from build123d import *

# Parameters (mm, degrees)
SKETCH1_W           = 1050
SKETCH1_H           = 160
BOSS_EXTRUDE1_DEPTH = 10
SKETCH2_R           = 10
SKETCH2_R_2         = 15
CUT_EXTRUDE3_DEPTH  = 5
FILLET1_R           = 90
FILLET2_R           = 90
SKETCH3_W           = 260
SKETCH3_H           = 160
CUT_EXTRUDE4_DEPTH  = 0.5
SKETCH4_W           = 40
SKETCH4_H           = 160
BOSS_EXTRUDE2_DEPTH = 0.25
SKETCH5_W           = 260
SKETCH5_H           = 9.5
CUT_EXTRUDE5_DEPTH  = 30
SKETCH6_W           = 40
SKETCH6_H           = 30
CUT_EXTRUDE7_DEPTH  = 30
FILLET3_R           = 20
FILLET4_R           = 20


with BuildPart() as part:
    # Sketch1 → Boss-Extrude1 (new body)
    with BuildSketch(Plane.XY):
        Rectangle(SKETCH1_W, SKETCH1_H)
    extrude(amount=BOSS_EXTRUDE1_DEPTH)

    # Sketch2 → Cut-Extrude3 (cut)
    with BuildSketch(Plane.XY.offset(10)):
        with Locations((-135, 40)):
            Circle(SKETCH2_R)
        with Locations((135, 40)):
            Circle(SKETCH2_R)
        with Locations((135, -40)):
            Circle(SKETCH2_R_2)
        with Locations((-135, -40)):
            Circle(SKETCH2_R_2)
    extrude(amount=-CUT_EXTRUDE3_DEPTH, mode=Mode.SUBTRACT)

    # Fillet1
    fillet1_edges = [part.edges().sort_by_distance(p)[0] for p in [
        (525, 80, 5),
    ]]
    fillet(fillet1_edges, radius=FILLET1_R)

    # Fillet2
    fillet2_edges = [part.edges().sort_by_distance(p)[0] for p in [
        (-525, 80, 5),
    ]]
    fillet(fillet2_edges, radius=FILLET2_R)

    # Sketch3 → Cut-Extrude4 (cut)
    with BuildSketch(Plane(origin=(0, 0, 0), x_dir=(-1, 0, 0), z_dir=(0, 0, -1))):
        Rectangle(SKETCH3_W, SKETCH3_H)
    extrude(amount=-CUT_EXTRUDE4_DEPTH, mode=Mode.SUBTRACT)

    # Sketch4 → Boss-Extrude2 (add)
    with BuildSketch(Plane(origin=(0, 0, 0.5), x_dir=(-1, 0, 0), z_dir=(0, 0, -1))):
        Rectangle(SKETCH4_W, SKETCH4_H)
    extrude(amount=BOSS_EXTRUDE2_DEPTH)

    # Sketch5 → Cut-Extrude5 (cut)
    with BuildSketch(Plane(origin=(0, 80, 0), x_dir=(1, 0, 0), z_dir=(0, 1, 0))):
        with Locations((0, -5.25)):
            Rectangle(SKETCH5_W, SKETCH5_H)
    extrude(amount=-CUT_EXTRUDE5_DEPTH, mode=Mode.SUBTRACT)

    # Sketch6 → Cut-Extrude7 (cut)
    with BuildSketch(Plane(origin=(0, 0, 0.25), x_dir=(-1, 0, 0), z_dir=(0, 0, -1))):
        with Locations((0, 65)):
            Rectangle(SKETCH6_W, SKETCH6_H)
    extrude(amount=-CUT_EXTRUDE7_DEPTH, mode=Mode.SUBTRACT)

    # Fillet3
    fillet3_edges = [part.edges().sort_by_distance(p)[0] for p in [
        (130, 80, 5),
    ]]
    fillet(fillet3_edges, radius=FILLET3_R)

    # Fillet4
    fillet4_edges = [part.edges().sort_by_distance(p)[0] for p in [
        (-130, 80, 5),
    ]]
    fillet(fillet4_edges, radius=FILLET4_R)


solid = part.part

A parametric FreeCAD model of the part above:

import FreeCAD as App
import Part
import Sketcher


def edges_at(feature, points):
    """Names of the edges that pass closest to the given points."""
    edges = feature.Shape.Edges
    near = lambda p: min(range(len(edges)), key=lambda i: edges[i].distToShape(Part.Vertex(*p))[0])
    return sorted({f"Edge{near(p) + 1}" for p in points})


def add_polygon(sketch, points):
    """Adds a closed chain of lines whose ends are joined by coincident constraints."""
    first, n = sketch.GeometryCount, len(points)
    for a, b in zip(points, points[1:] + points[:1]):
        sketch.addGeometry(Part.LineSegment(App.Vector(*a, 0), App.Vector(*b, 0)), False)
    for i in range(n):
        sketch.addConstraint(Sketcher.Constraint("Coincident", first + i, 2, first + (i + 1) % n, 1))

doc = App.newDocument("Part")
params = doc.addObject("Spreadsheet::Sheet", "Params")
for row, (alias, value) in enumerate([
    ("sketch1_width", "1050 mm"),
    ("sketch1_height", "160 mm"),
    ("pad1_length", "10 mm"),
    ("sketch2_diameter", "20 mm"),
    ("sketch2_diameter2", "30 mm"),
    ("pocket1_length", "5 mm"),
    ("fillet_radius", "90 mm"),
    ("fillet2_radius", "90 mm"),
    ("sketch3_width", "260 mm"),
    ("sketch3_height", "160 mm"),
    ("pocket2_length", "0.5 mm"),
    ("sketch4_width", "40 mm"),
    ("sketch4_height", "160 mm"),
    ("pad2_length", "0.25 mm"),
    ("sketch5_width", "260 mm"),
    ("sketch5_height", "9.5 mm"),
    ("pocket3_length", "30 mm"),
    ("sketch6_width", "40 mm"),
    ("sketch6_height", "30 mm"),
    ("pocket4_length", "30 mm"),
    ("fillet3_radius", "20 mm"),
    ("fillet4_radius", "20 mm"),
], start=1):
    params.set(f"A{row}", alias)
    params.set(f"B{row}", "=" + value)
    params.setAlias(f"B{row}", alias)

body = doc.addObject("PartDesign::Body", "Body")

sketch1 = body.newObject("Sketcher::SketchObject", "Sketch")
sketch1.AttachmentSupport = (doc.getObject("XY_Plane"), [""])
sketch1.MapMode = "FlatFace"
add_polygon(sketch1, [(-525, 80), (-525, -80), (525, -80), (525, 80)])
sketch1.addConstraint([
    Sketcher.Constraint("Vertical", 0),
    Sketcher.Constraint("Horizontal", 1),
    Sketcher.Constraint("Vertical", 2),
    Sketcher.Constraint("Horizontal", 3),
    Sketcher.Constraint("Symmetric", 0, 2, 2, 2, -1, 1),
    Sketcher.Constraint("DistanceX", 1, 1, 1, 2, 1050.0),
    Sketcher.Constraint("DistanceY", 0, 2, 0, 1, 160.0),
])
sketch1.setExpression("Constraints[9]", "Params.sketch1_width")
sketch1.setExpression("Constraints[10]", "Params.sketch1_height")
pad1 = body.newObject("PartDesign::Pad", "Pad")
pad1.Profile = sketch1
pad1.setExpression("Length", "Params.pad1_length")

sketch2 = body.newObject("Sketcher::SketchObject", "Sketch001")
sketch2.AttachmentSupport = (doc.getObject("XY_Plane"), [""])
sketch2.MapMode = "FlatFace"
sketch2.AttachmentOffset = App.Placement(App.Vector(0, 0, 10), App.Rotation())
sketch2.addGeometry([
    Part.Circle(App.Vector(-135, 40, 0), App.Vector(0, 0, 1), 10),
    Part.Circle(App.Vector(135, 40, 0), App.Vector(0, 0, 1), 10),
    Part.Circle(App.Vector(135, -40, 0), App.Vector(0, 0, 1), 15),
    Part.Circle(App.Vector(-135, -40, 0), App.Vector(0, 0, 1), 15),
], False)
sketch2.addConstraint([
    Sketcher.Constraint("Equal", 0, 1),
    Sketcher.Constraint("Equal", 2, 3),
    Sketcher.Constraint("Symmetric", 0, 3, 2, 3, -1, 1),
    Sketcher.Constraint("Symmetric", 1, 3, 3, 3, -1, 1),
    Sketcher.Constraint("Symmetric", 0, 3, 1, 3, -2),
    Sketcher.Constraint("Diameter", 0, 20.0),
    Sketcher.Constraint("Diameter", 2, 30.0),
    Sketcher.Constraint("DistanceX", 0, 3, -1, 1, 135.0),
    Sketcher.Constraint("DistanceY", -1, 1, 0, 3, 40.0),
])
sketch2.setExpression("Constraints[5]", "Params.sketch2_diameter")
sketch2.setExpression("Constraints[6]", "Params.sketch2_diameter2")
pocket1 = body.newObject("PartDesign::Pocket", "Pocket")
pocket1.Profile = sketch2
pocket1.setExpression("Length", "Params.pocket1_length")
doc.recompute()

fillet = body.newObject("PartDesign::Fillet", "Fillet")
fillet.Base = (pocket1, edges_at(pocket1, [(525, 80, 5)]))
fillet.setExpression("Radius", "Params.fillet_radius")
doc.recompute()

fillet2 = body.newObject("PartDesign::Fillet", "Fillet001")
fillet2.Base = (fillet, edges_at(fillet, [(-525, 80, 5)]))
fillet2.setExpression("Radius", "Params.fillet2_radius")

sketch3 = body.newObject("Sketcher::SketchObject", "Sketch002")
sketch3.AttachmentSupport = (doc.getObject("XY_Plane"), [""])
sketch3.MapMode = "FlatFace"
add_polygon(sketch3, [(130, 80), (130, -80), (-130, -80), (-130, 80)])
sketch3.addConstraint([
    Sketcher.Constraint("Vertical", 0),
    Sketcher.Constraint("Horizontal", 1),
    Sketcher.Constraint("Vertical", 2),
    Sketcher.Constraint("Horizontal", 3),
    Sketcher.Constraint("Symmetric", 0, 2, 2, 2, -1, 1),
    Sketcher.Constraint("DistanceX", 1, 2, 1, 1, 260.0),
    Sketcher.Constraint("DistanceY", 0, 2, 0, 1, 160.0),
])
sketch3.setExpression("Constraints[9]", "Params.sketch3_width")
sketch3.setExpression("Constraints[10]", "Params.sketch3_height")
pocket2 = body.newObject("PartDesign::Pocket", "Pocket001")
pocket2.Profile = sketch3
pocket2.setExpression("Length", "Params.pocket2_length")
pocket2.Reversed = True

sketch4 = body.newObject("Sketcher::SketchObject", "Sketch003")
sketch4.AttachmentSupport = (doc.getObject("XY_Plane"), [""])
sketch4.MapMode = "FlatFace"
sketch4.AttachmentOffset = App.Placement(App.Vector(0, 0, 0.5), App.Rotation())
add_polygon(sketch4, [(20, 80), (20, -80), (-20, -80), (-20, 80)])
sketch4.addConstraint([
    Sketcher.Constraint("Vertical", 0),
    Sketcher.Constraint("Horizontal", 1),
    Sketcher.Constraint("Vertical", 2),
    Sketcher.Constraint("Horizontal", 3),
    Sketcher.Constraint("Symmetric", 0, 2, 2, 2, -1, 1),
    Sketcher.Constraint("DistanceX", 1, 2, 1, 1, 40.0),
    Sketcher.Constraint("DistanceY", 0, 2, 0, 1, 160.0),
])
sketch4.setExpression("Constraints[9]", "Params.sketch4_width")
sketch4.setExpression("Constraints[10]", "Params.sketch4_height")
pad2 = body.newObject("PartDesign::Pad", "Pad001")
pad2.Profile = sketch4
pad2.setExpression("Length", "Params.pad2_length")
pad2.Reversed = True

sketch5 = body.newObject("Sketcher::SketchObject", "Sketch004")
sketch5.AttachmentSupport = (doc.getObject("XZ_Plane"), [""])
sketch5.MapMode = "FlatFace"
sketch5.AttachmentOffset = App.Placement(App.Vector(0, 0, -80), App.Rotation())
add_polygon(sketch5, [(-130, 0.5), (-130, 10), (130, 10), (130, 0.5)])
sketch5.addConstraint([
    Sketcher.Constraint("Vertical", 0),
    Sketcher.Constraint("Horizontal", 1),
    Sketcher.Constraint("Vertical", 2),
    Sketcher.Constraint("Horizontal", 3),
    Sketcher.Constraint("DistanceX", 1, 1, 1, 2, 260.0),
    Sketcher.Constraint("DistanceY", 0, 1, 0, 2, 9.5),
    Sketcher.Constraint("DistanceX", 0, 2, -1, 1, 130.0),
    Sketcher.Constraint("DistanceY", -1, 1, 0, 2, 10.0),
])
sketch5.setExpression("Constraints[8]", "Params.sketch5_width")
sketch5.setExpression("Constraints[9]", "Params.sketch5_height")
pocket3 = body.newObject("PartDesign::Pocket", "Pocket002")
pocket3.Profile = sketch5
pocket3.setExpression("Length", "Params.pocket3_length")
pocket3.Reversed = True

sketch6 = body.newObject("Sketcher::SketchObject", "Sketch005")
sketch6.AttachmentSupport = (doc.getObject("XY_Plane"), [""])
sketch6.MapMode = "FlatFace"
sketch6.AttachmentOffset = App.Placement(App.Vector(0, 0, 0.25), App.Rotation())
add_polygon(sketch6, [(20, 80), (20, 50), (-20, 50), (-20, 80)])
sketch6.addConstraint([
    Sketcher.Constraint("Vertical", 0),
    Sketcher.Constraint("Horizontal", 1),
    Sketcher.Constraint("Vertical", 2),
    Sketcher.Constraint("Horizontal", 3),
    Sketcher.Constraint("DistanceX", 1, 2, 1, 1, 40.0),
    Sketcher.Constraint("DistanceY", 0, 2, 0, 1, 30.0),
    Sketcher.Constraint("DistanceX", -1, 1, 0, 2, 20.0),
    Sketcher.Constraint("DistanceY", -1, 1, 0, 2, 50.0),
])
sketch6.setExpression("Constraints[8]", "Params.sketch6_width")
sketch6.setExpression("Constraints[9]", "Params.sketch6_height")
pocket4 = body.newObject("PartDesign::Pocket", "Pocket003")
pocket4.Profile = sketch6
pocket4.setExpression("Length", "Params.pocket4_length")
pocket4.Reversed = True
doc.recompute()

fillet3 = body.newObject("PartDesign::Fillet", "Fillet002")
fillet3.Base = (pocket4, edges_at(pocket4, [(130, 80, 5)]))
fillet3.setExpression("Radius", "Params.fillet3_radius")
doc.recompute()

fillet4 = body.newObject("PartDesign::Fillet", "Fillet003")
fillet4.Base = (fillet3, edges_at(fillet3, [(-130, 80, 5)]))
fillet4.setExpression("Radius", "Params.fillet4_radius")

doc.recompute()
